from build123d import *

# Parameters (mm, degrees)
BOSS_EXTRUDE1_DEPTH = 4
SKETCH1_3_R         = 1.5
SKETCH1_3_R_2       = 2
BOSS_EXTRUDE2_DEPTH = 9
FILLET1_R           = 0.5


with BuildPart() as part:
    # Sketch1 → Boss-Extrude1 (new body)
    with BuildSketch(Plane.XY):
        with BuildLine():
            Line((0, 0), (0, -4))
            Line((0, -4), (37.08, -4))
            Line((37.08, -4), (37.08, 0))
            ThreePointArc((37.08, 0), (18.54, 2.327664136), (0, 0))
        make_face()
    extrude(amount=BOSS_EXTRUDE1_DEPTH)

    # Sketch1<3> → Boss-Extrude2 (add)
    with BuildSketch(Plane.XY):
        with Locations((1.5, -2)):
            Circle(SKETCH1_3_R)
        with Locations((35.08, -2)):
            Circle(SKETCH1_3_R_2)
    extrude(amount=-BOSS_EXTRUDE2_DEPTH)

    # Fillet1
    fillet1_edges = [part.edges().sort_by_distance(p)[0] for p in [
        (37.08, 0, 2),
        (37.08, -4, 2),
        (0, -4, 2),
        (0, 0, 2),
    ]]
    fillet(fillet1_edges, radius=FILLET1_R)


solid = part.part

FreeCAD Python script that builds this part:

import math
import FreeCAD as App
import Part
import Sketcher


def edges_at(feature, points):
    """Names of the edges that pass closest to the given points."""
    edges = feature.Shape.Edges
    near = lambda p: min(range(len(edges)), key=lambda i: edges[i].distToShape(Part.Vertex(*p))[0])
    return sorted({f"Edge{near(p) + 1}" for p in points})

doc = App.newDocument("Part")
body = doc.addObject("PartDesign::Body", "Body")

# Sketch on XY plane
sketch1 = body.newObject("Sketcher::SketchObject", "Sketch")
sketch1.AttachmentSupport = (doc.getObject("XY_Plane"), [""])
sketch1.MapMode = "FlatFace"
sketch1.addGeometry(Part.LineSegment(App.Vector(0, 0, 0), App.Vector(0, -4, 0)), False)
sketch1.addGeometry(Part.LineSegment(App.Vector(0, -4, 0), App.Vector(37.08, -4, 0)), False)
sketch1.addGeometry(Part.LineSegment(App.Vector(37.08, -4, 0), App.Vector(37.08, 0, 0)), False)
sketch1.addGeometry(Part.ArcOfCircle(Part.Circle(App.Vector(18.54, -72.672336, 0), App.Vector(0, 0, 1), 75), math.radians(75.688116), math.radians(104.311884)), False)
sketch1.addConstraint(Sketcher.Constraint("Coincident", 0, 2, 1, 1))
sketch1.addConstraint(Sketcher.Constraint("Coincident", 1, 2, 2, 1))
sketch1.addConstraint(Sketcher.Constraint("Coincident", 2, 2, 3, 1))
sketch1.addConstraint(Sketcher.Constraint("Coincident", 3, 2, 0, 1))
sketch1.addConstraint(Sketcher.Constraint("Vertical", 0))
sketch1.addConstraint(Sketcher.Constraint("Horizontal", 1))
sketch1.addConstraint(Sketcher.Constraint("Vertical", 2))
sketch1.addConstraint(Sketcher.Constraint("Coincident", 3, 2, -1, 1))
sketch1.addConstraint(Sketcher.Constraint("PointOnObject", 2, 2, -1))
sketch1.addConstraint(Sketcher.Constraint("Radius", 3, 75.0))
sketch1.addConstraint(Sketcher.Constraint("DistanceY", 0, 2, 0, 1, 4.0))
sketch1.addConstraint(Sketcher.Constraint("DistanceX", 1, 1, 1, 2, 37.08))
pad1 = body.newObject("PartDesign::Pad", "Pad")
pad1.Profile = sketch1
pad1.Length = 4

# Sketch on XY plane
sketch2 = body.newObject("Sketcher::SketchObject", "Sketch001")
sketch2.AttachmentSupport = (doc.getObject("XY_Plane"), [""])
sketch2.MapMode = "FlatFace"
sketch2.addGeometry(Part.Circle(App.Vector(1.5, -2, 0), App.Vector(0, 0, 1), 1.5), False)
sketch2.addGeometry(Part.Circle(App.Vector(35.08, -2, 0), App.Vector(0, 0, 1), 2), False)
sketch2.addConstraint(Sketcher.Constraint("Horizontal", 0, 3, 1, 3))
sketch2.addConstraint(Sketcher.Constraint("Diameter", 0, 3.0))
sketch2.addConstraint(Sketcher.Constraint("Diameter", 1, 4.0))
sketch2.addConstraint(Sketcher.Constraint("DistanceY", 0, 3, -1, 1, 2.0))
sketch2.addConstraint(Sketcher.Constraint("DistanceX", -1, 1, 0, 3, 1.5))
sketch2.addConstraint(Sketcher.Constraint("DistanceX", -1, 1, 1, 3, 35.08))
pad2 = body.newObject("PartDesign::Pad", "Pad001")
pad2.Profile = sketch2
pad2.Length = 9
pad2.Reversed = True
doc.recompute()

fillet = body.newObject("PartDesign::Fillet", "Fillet")
fillet.Base = (pad2, edges_at(pad2, [
    (37.08, 0, 2),
    (37.08, -4, 2),
    (0, -4, 2),
    (0, 0, 2),
]))
fillet.Radius = 0.5

doc.recompute()
